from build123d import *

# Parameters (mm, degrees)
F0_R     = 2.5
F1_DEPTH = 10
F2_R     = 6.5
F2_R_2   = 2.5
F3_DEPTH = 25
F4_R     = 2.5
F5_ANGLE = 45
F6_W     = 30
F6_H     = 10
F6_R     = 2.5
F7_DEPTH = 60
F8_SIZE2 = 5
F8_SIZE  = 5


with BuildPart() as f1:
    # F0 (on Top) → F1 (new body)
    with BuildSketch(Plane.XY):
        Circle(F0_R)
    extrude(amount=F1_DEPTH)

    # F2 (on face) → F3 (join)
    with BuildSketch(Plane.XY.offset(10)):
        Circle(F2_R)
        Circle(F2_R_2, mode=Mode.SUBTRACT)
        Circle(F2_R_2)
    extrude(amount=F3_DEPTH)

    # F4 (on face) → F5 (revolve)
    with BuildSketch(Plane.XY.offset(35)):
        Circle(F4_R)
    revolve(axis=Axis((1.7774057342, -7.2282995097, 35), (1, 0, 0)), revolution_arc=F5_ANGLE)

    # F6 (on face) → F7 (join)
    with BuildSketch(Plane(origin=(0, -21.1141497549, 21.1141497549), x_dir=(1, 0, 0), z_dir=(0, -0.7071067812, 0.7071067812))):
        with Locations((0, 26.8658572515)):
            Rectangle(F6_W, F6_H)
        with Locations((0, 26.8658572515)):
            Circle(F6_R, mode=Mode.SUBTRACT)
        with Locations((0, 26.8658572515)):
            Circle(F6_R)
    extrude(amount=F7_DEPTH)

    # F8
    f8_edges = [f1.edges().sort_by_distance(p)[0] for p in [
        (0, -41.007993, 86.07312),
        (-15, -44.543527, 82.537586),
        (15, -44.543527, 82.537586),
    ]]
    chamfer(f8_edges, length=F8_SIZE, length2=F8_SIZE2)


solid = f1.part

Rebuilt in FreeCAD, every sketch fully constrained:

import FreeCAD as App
import Part
import Sketcher
from FreeCAD import Vector


def edges_at(feature, points):
    """Names of the edges that pass closest to the given points."""
    edges = feature.Shape.Edges
    near = lambda p: min(range(len(edges)), key=lambda i: edges[i].distToShape(Part.Vertex(*p))[0])
    return sorted({f"Edge{near(p) + 1}" for p in points})

doc = App.newDocument("Part")
params = doc.addObject("Spreadsheet::Sheet", "Params")
for row, (alias, value) in enumerate([
    ("sketch1_diameter", "5 mm"),
    ("pad1_length", "10 mm"),
    ("sketch2_diameter", "13 mm"),
    ("pad2_length", "25 mm"),
    ("sketch3_diameter", "5 mm"),
    ("sketch3_width", "10 mm"),
    ("revolution_angle", "45 deg"),
    ("sketch4_width", "30 mm"),
    ("sketch4_height", "10 mm"),
    ("pad3_length", "60 mm"),
    ("chamfer_size", "5 mm"),
    ("chamfer_size2", "5 mm"),
], start=1):
    params.set(f"A{row}", alias)
    params.set(f"B{row}", "=" + value)
    params.setAlias(f"B{row}", alias)

body = doc.addObject("PartDesign::Body", "Body")

# Sketch on XY plane
sketch1 = body.newObject("Sketcher::SketchObject", "Sketch")
sketch1.AttachmentSupport = (doc.getObject("XY_Plane"), [""])
sketch1.MapMode = "FlatFace"
sketch1.addGeometry(Part.Circle(Vector(0, 0, 0), Vector(0, 0, 1), 2.5), False)
sketch1.addConstraint([
    Sketcher.Constraint("Coincident", 0, 3, -1, 1),
    Sketcher.Constraint("Diameter", 0, 5.0),
])
sketch1.setExpression("Constraints[1]", "Params.sketch1_diameter")
pad1 = body.newObject("PartDesign::Pad", "Pad")
pad1.Profile = sketch1
pad1.setExpression("Length", "Params.pad1_length")

# Sketch on XY plane
sketch2 = body.newObject("Sketcher::SketchObject", "Sketch001")
sketch2.AttachmentSupport = (doc.getObject("XY_Plane"), [""])
sketch2.MapMode = "FlatFace"
sketch2.AttachmentOffset = App.Placement(Vector(0, 0, 10), App.Rotation())
sketch2.addGeometry(Part.Circle(Vector(0, 0, 0), Vector(0, 0, 1), 6.5), False)
sketch2.addConstraint([
    Sketcher.Constraint("Coincident", 0, 3, -1, 1),
    Sketcher.Constraint("Diameter", 0, 13.0),
])
sketch2.setExpression("Constraints[1]", "Params.sketch2_diameter")
pad2 = body.newObject("PartDesign::Pad", "Pad001")
pad2.Profile = sketch2
pad2.setExpression("Length", "Params.pad2_length")

# Sketch on XY plane
sketch3 = body.newObject("Sketcher::SketchObject", "Sketch002")
sketch3.AttachmentSupport = (doc.getObject("XY_Plane"), [""])
sketch3.MapMode = "FlatFace"
sketch3.AttachmentOffset = App.Placement(Vector(0, 0, 35), App.Rotation())
sketch3.addGeometry(Part.Circle(Vector(0, 0, 0), Vector(0, 0, 1), 2.5), False)
sketch3.addGeometry(Part.LineSegment(Vector(0, -7.2283, 0), Vector(10, -7.2283, 0)), True)  # axis
sketch3.addConstraint([
    Sketcher.Constraint("Horizontal", 1),
    Sketcher.Constraint("Coincident", 0, 3, -1, 1),
    Sketcher.Constraint("PointOnObject", 1, 1, -2),
    Sketcher.Constraint("Diameter", 0, 5.0),
    Sketcher.Constraint("DistanceX", 1, 1, 1, 2, 10.0),
    Sketcher.Constraint("DistanceY", 1, 1, -1, 1, 7.2283),
])
sketch3.setExpression("Constraints[3]", "Params.sketch3_diameter")
sketch3.setExpression("Constraints[4]", "Params.sketch3_width")
revolution = body.newObject("PartDesign::Revolution", "Revolution")
revolution.Profile = sketch3
revolution.ReferenceAxis = (sketch3, ["Axis0"])
revolution.setExpression("Angle", "Params.revolution_angle")

# Sketch on an angled plane
sketch4 = body.newObject("Sketcher::SketchObject", "Sketch003")
sketch4.Placement = App.Placement(Vector(0, -21.11415, 21.11415), App.Rotation(Vector(1, 0, 0), Vector(0, 0.707106781, 0.707106781), Vector(0, -0.707106781, 0.707106781), "ZXY"))
sketch4.addGeometry([
    Part.LineSegment(Vector(-15, 31.865857, 0), Vector(-15, 21.865857, 0)),
    Part.LineSegment(Vector(-15, 21.865857, 0), Vector(15, 21.865857, 0)),
    Part.LineSegment(Vector(15, 21.865857, 0), Vector(15, 31.865857, 0)),
    Part.LineSegment(Vector(15, 31.865857, 0), Vector(-15, 31.865857, 0)),
], False)
sketch4.addConstraint([
    Sketcher.Constraint("Coincident", 0, 2, 1, 1),
    Sketcher.Constraint("Coincident", 1, 2, 2, 1),
    Sketcher.Constraint("Coincident", 2, 2, 3, 1),
    Sketcher.Constraint("Coincident", 3, 2, 0, 1),
    Sketcher.Constraint("Vertical", 0),
    Sketcher.Constraint("Horizontal", 1),
    Sketcher.Constraint("Vertical", 2),
    Sketcher.Constraint("Horizontal", 3),
    Sketcher.Constraint("DistanceX", 1, 1, 1, 2, 30.0),
    Sketcher.Constraint("DistanceY", 0, 2, 0, 1, 10.0),
    Sketcher.Constraint("DistanceX", 0, 2, -1, 1, 15.0),
    Sketcher.Constraint("DistanceY", -1, 1, 0, 2, 21.865857),
])
sketch4.setExpression("Constraints[8]", "Params.sketch4_width")
sketch4.setExpression("Constraints[9]", "Params.sketch4_height")
pad3 = body.newObject("PartDesign::Pad", "Pad002")
pad3.Profile = sketch4
pad3.setExpression("Length", "Params.pad3_length")
doc.recompute()

chamfer = body.newObject("PartDesign::Chamfer", "Chamfer")
chamfer.Base = (pad3, edges_at(pad3, [(0, -41.008, 86.073), (-15, -44.544, 82.538), (15, -44.544, 82.538)]))
chamfer.ChamferType = "Two distances"
chamfer.setExpression("Size", "Params.chamfer_size")
chamfer.setExpression("Size2", "Params.chamfer_size2")

doc.recompute()
